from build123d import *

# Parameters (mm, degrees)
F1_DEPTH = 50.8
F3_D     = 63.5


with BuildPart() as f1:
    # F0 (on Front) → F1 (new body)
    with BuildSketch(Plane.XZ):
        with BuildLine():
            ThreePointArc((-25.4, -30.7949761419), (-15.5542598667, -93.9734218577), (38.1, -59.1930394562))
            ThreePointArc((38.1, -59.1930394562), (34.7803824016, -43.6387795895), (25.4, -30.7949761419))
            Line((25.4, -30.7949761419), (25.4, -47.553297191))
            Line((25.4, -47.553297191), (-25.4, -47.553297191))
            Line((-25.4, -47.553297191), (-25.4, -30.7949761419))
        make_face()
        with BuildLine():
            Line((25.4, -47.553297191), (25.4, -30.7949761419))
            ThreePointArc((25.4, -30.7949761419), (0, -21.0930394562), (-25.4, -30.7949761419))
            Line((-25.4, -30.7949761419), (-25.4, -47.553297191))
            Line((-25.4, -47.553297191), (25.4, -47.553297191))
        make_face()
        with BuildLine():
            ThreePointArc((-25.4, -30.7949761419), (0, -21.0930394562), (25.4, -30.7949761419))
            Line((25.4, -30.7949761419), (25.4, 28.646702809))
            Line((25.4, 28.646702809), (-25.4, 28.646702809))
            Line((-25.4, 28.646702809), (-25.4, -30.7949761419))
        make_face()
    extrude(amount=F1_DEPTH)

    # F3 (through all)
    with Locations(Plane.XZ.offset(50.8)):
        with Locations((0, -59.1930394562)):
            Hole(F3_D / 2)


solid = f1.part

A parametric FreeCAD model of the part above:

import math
import FreeCAD as App
import Part
import Sketcher
Q = App.Units.Quantity

doc = App.newDocument("Part")
body = doc.addObject("PartDesign::Body", "Body")

# Sketch on XZ plane
sketch1 = doc.addObject("Sketcher::SketchObject", "Sketch")
body.addObject(sketch1)
sketch1.AttachmentSupport = (doc.XZ_Plane, [""])
sketch1.MapMode = "FlatFace"
sketch1.addGeometry(Part.ArcOfCircle(Part.Circle(App.Vector(0, -59.193039, 0), App.Vector(0, 0, 1), 38.1), math.radians(131.810315), math.radians(408.189685)), False)
sketch1.addGeometry(Part.LineSegment(App.Vector(25.4, -30.794976, 0), App.Vector(25.4, 28.646703, 0)), False)
sketch1.addGeometry(Part.LineSegment(App.Vector(25.4, 28.646703, 0), App.Vector(-25.4, 28.646703, 0)), False)
sketch1.addGeometry(Part.LineSegment(App.Vector(-25.4, 28.646703, 0), App.Vector(-25.4, -30.794976, 0)), False)
sketch1.addConstraint(Sketcher.Constraint("Coincident", 0, 2, 1, 1))
sketch1.addConstraint(Sketcher.Constraint("Coincident", 1, 2, 2, 1))
sketch1.addConstraint(Sketcher.Constraint("Coincident", 2, 2, 3, 1))
sketch1.addConstraint(Sketcher.Constraint("Coincident", 3, 2, 0, 1))
sketch1.addConstraint(Sketcher.Constraint("Vertical", 1))
sketch1.addConstraint(Sketcher.Constraint("Horizontal", 2))
sketch1.addConstraint(Sketcher.Constraint("Vertical", 3))
sketch1.addConstraint(Sketcher.Constraint("Symmetric", 0, 2, 3, 2, -2))
sketch1.addConstraint(Sketcher.Constraint("Radius", 0, Q("1.5 in")))
sketch1.addConstraint(Sketcher.Constraint("DistanceX", 2, 2, 2, 1, Q("2 in")))
sketch1.addConstraint(Sketcher.Constraint("DistanceY", 1, 1, 1, 2, Q("59.441679 mm")))
sketch1.addConstraint(Sketcher.Constraint("DistanceY", 0, 3, -1, 1, Q("59.193039 mm")))
pad1 = doc.addObject("PartDesign::Pad", "Pad")
body.addObject(pad1)
pad1.Profile = sketch1
pad1.Length = Q("2 in")

# Sketch on XZ plane
sketch2 = doc.addObject("Sketcher::SketchObject", "Sketch001")
body.addObject(sketch2)
sketch2.AttachmentSupport = (doc.XZ_Plane, [""])
sketch2.MapMode = "FlatFace"
sketch2.AttachmentOffset = App.Placement(App.Vector(0, 0, 2 * 25.4), App.Rotation())
sketch2.addGeometry(Part.Circle(App.Vector(0, -59.193039, 0), App.Vector(0, 0, 1), 31.75), False)
sketch2.addConstraint(Sketcher.Constraint("PointOnObject", 0, 3, -2))
sketch2.addConstraint(Sketcher.Constraint("Diameter", 0, Q("2.5 in")))
sketch2.addConstraint(Sketcher.Constraint("DistanceY", 0, 3, -1, 1, Q("59.193039 mm")))
doc.recompute()
hole = doc.addObject("PartDesign::Hole", "Hole")
body.addObject(hole)
hole.Profile = sketch2
hole.ThreadType = "None"
hole.Diameter = Q("2.5 in")
hole.DepthType = "ThroughAll"

doc.recompute()
